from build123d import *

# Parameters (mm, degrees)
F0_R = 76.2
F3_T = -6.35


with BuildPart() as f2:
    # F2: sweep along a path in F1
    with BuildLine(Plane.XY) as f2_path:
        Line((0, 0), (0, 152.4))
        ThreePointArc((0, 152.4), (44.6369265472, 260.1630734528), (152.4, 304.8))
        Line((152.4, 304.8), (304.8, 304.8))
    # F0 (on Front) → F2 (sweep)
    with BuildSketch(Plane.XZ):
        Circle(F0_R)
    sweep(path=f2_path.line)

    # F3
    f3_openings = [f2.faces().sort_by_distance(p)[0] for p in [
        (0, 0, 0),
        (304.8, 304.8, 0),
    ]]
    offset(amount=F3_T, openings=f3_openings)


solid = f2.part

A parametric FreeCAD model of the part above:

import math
import FreeCAD as App
import Part
import Sketcher

V = App.Vector
Q = App.Units.Quantity


def faces_at(feature, points):
    """Names of the faces that lie closest to the given points."""
    faces = feature.Shape.Faces
    near = lambda p: min(range(len(faces)), key=lambda i: faces[i].distToShape(Part.Vertex(*p))[0])
    return sorted({f"Face{near(p) + 1}" for p in points})

doc = App.newDocument("Part")
body = doc.addObject("PartDesign::Body", "Body")

# Sketch on XZ plane
sketch1 = body.newObject("Sketcher::SketchObject", "Sketch")
sketch1.AttachmentSupport = (doc.getObject("XZ_Plane"), [""])
sketch1.MapMode = "FlatFace"
sketch1.addGeometry(Part.Circle(V(0, 0, 0), V(0, 0, 1), 76.2), False)
sketch1.addConstraint([
    Sketcher.Constraint("Coincident", 0, 3, -1, 1),
    Sketcher.Constraint("Diameter", 0, Q("6 in")),
])

# Sketch on XY plane
sketch2 = body.newObject("Sketcher::SketchObject", "Sketch001")
sketch2.AttachmentSupport = (doc.getObject("XY_Plane"), [""])
sketch2.MapMode = "FlatFace"
sketch2.addGeometry([
    Part.LineSegment(V(0, 0, 0), V(0, 152.4, 0)),
    Part.ArcOfCircle(Part.Circle(V(152.4, 152.4, 0), V(0, 0, 1), 152.4), math.radians(90), math.radians(180)),
    Part.LineSegment(V(152.4, 304.8, 0), V(304.8, 304.8, 0)),
], False)
sketch2.addConstraint([
    Sketcher.Constraint("Tangent", 0, 2, 1, 2),
    Sketcher.Constraint("Tangent", 1, 1, 2, 1),
    Sketcher.Constraint("Vertical", 0),
    Sketcher.Constraint("Horizontal", 2),
    Sketcher.Constraint("Coincident", 0, 1, -1, 1),
    Sketcher.Constraint("Equal", 2, 0),
    Sketcher.Constraint("Radius", 1, Q("6 in")),
    Sketcher.Constraint("DistanceX", 2, 1, 2, 2, Q("6 in")),
])
doc.recompute()

additivepipe = body.newObject("PartDesign::AdditivePipe", "AdditivePipe")
additivepipe.Profile = sketch1
additivepipe.Spine = (sketch2, ["Edge1", "Edge2", "Edge3"])
doc.recompute()

thickness = body.newObject("PartDesign::Thickness", "Thickness")
thickness.Base = (additivepipe, faces_at(additivepipe, [(0, 0, 0), (304.8, 304.8, 0)]))
thickness.Value = Q("0.25 in")
thickness.Reversed = True
thickness.Join = "Arc"

doc.recompute()
